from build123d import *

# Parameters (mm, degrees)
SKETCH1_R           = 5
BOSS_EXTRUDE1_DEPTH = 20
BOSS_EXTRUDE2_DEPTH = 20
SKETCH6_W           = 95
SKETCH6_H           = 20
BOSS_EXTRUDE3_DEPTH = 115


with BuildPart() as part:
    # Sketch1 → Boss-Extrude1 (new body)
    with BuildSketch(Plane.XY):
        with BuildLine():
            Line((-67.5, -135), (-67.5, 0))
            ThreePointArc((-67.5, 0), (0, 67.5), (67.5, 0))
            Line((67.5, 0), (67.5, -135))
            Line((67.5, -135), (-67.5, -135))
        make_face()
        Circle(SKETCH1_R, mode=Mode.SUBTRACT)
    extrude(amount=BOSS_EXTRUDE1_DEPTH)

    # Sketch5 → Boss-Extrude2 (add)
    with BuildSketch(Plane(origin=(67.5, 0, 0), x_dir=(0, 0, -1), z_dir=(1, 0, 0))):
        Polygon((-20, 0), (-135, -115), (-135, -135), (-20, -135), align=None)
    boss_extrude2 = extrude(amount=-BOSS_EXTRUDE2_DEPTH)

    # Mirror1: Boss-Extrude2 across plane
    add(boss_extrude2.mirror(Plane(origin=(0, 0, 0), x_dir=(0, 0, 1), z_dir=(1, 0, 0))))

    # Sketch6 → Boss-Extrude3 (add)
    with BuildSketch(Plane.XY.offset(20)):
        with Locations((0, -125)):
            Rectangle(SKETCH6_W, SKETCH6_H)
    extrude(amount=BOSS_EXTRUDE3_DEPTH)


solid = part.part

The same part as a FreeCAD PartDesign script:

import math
import FreeCAD as App
import Part
import Sketcher

V = App.Vector
Q = App.Units.Quantity


def add_polygon(sketch, points):
    """Adds a closed chain of lines whose ends are joined by coincident constraints."""
    first, n = sketch.GeometryCount, len(points)
    for a, b in zip(points, points[1:] + points[:1]):
        sketch.addGeometry(Part.LineSegment(App.Vector(*a, 0), App.Vector(*b, 0)), False)
    for i in range(n):
        sketch.addConstraint(Sketcher.Constraint("Coincident", first + i, 2, first + (i + 1) % n, 1))

doc = App.newDocument("Part")
params = doc.addObject("Spreadsheet::Sheet", "Params")
for row, (alias, value) in enumerate([
    ("sketch1_diameter", "10 mm"),
    ("sketch1_radius", "67.5 mm"),
    ("pad1_length", "20 mm"),
    ("sketch2_width", "20 mm"),
    ("sketch2_width2", "135 mm"),
    ("sketch2_height", "115 mm"),
    ("pad2_length", "20 mm"),
    ("sketch3_width", "95 mm"),
    ("sketch3_height", "20 mm"),
    ("pad3_length", "115 mm"),
], start=1):
    params.set(f"A{row}", alias)
    params.set(f"B{row}", "=" + value)
    params.setAlias(f"B{row}", alias)

body = doc.addObject("PartDesign::Body", "Body")

sketch1 = doc.addObject("Sketcher::SketchObject", "Sketch")
body.addObject(sketch1)
sketch1.AttachmentSupport = (doc.XY_Plane, [""])
sketch1.MapMode = "FlatFace"
sketch1.addGeometry(Part.LineSegment(V(-67.5, 0, 0), V(-67.5, -135, 0)), False)
sketch1.addGeometry(Part.LineSegment(V(-67.5, -135, 0), V(67.5, -135, 0)), False)
sketch1.addGeometry(Part.LineSegment(V(67.5, -135, 0), V(67.5, 0, 0)), False)
sketch1.addGeometry(Part.ArcOfCircle(Part.Circle(V(0, 0, 0), V(0, 0, 1), 67.5), math.radians(0), math.radians(180)), False)
sketch1.addGeometry(Part.Circle(V(0, 0, 0), V(0, 0, 1), 5), False)
sketch1.addConstraint(Sketcher.Constraint("Coincident", 0, 2, 1, 1))
sketch1.addConstraint(Sketcher.Constraint("Coincident", 1, 2, 2, 1))
sketch1.addConstraint(Sketcher.Constraint("Tangent", 2, 2, 3, 1))
sketch1.addConstraint(Sketcher.Constraint("Tangent", 3, 2, 0, 1))
sketch1.addConstraint(Sketcher.Constraint("Vertical", 0))
sketch1.addConstraint(Sketcher.Constraint("Horizontal", 1))
sketch1.addConstraint(Sketcher.Constraint("Vertical", 2))
sketch1.addConstraint(Sketcher.Constraint("Coincident", 3, 3, -1, 1))
sketch1.addConstraint(Sketcher.Constraint("Coincident", 4, 3, -1, 1))
sketch1.addConstraint(Sketcher.Constraint("Equal", 1, 0))
sketch1.addConstraint(Sketcher.Constraint("Diameter", 4, Q("10 mm")))
sketch1.addConstraint(Sketcher.Constraint("Radius", 3, Q("67.5 mm")))
sketch1.setExpression("Constraints[10]", "Params.sketch1_diameter")
sketch1.setExpression("Constraints[11]", "Params.sketch1_radius")
pad1 = doc.addObject("PartDesign::Pad", "Pad")
body.addObject(pad1)
pad1.Profile = sketch1
pad1.setExpression("Length", "Params.pad1_length")

sketch2 = doc.addObject("Sketcher::SketchObject", "Sketch001")
body.addObject(sketch2)
sketch2.AttachmentSupport = (doc.YZ_Plane, [""])
sketch2.MapMode = "FlatFace"
sketch2.AttachmentOffset = App.Placement(V(0, 0, 67.5), App.Rotation())
add_polygon(sketch2, [(0, 20), (-115, 135), (-135, 135), (-135, 20)])
sketch2.addConstraint(Sketcher.Constraint("Horizontal", 1))
sketch2.addConstraint(Sketcher.Constraint("Vertical", 2))
sketch2.addConstraint(Sketcher.Constraint("Horizontal", 3))
sketch2.addConstraint(Sketcher.Constraint("PointOnObject", 3, 2, -2))
sketch2.addConstraint(Sketcher.Constraint("DistanceX", 1, 2, 1, 1, Q("20 mm")))
sketch2.addConstraint(Sketcher.Constraint("DistanceX", 3, 1, 3, 2, Q("135 mm")))
sketch2.addConstraint(Sketcher.Constraint("DistanceY", 2, 2, 2, 1, Q("115 mm")))
sketch2.addConstraint(Sketcher.Constraint("DistanceY", -1, 1, 0, 2, Q("135 mm")))
sketch2.setExpression("Constraints[8]", "Params.sketch2_width")
sketch2.setExpression("Constraints[9]", "Params.sketch2_width2")
sketch2.setExpression("Constraints[10]", "Params.sketch2_height")
pad2 = doc.addObject("PartDesign::Pad", "Pad001")
body.addObject(pad2)
pad2.Profile = sketch2
pad2.setExpression("Length", "Params.pad2_length")
pad2.Reversed = True
doc.recompute()

mirrored = doc.addObject("PartDesign::Mirrored", "Mirrored")
body.addObject(mirrored)
mirrored.Originals = [pad2]
mirrored.MirrorPlane = (doc.YZ_Plane, [""])
body.Tip = mirrored

sketch3 = doc.addObject("Sketcher::SketchObject", "Sketch002")
body.addObject(sketch3)
sketch3.AttachmentSupport = (doc.XY_Plane, [""])
sketch3.MapMode = "FlatFace"
sketch3.AttachmentOffset = App.Placement(V(0, 0, 20), App.Rotation())
add_polygon(sketch3, [(-47.5, -115), (-47.5, -135), (47.5, -135), (47.5, -115)])
sketch3.addConstraint(Sketcher.Constraint("Vertical", 0))
sketch3.addConstraint(Sketcher.Constraint("Horizontal", 1))
sketch3.addConstraint(Sketcher.Constraint("Vertical", 2))
sketch3.addConstraint(Sketcher.Constraint("Horizontal", 3))
sketch3.addConstraint(Sketcher.Constraint("DistanceX", 1, 1, 1, 2, Q("95 mm")))
sketch3.addConstraint(Sketcher.Constraint("DistanceY", 0, 2, 0, 1, Q("20 mm")))
sketch3.addConstraint(Sketcher.Constraint("DistanceY", 0, 2, -1, 1, Q("135 mm")))
sketch3.addConstraint(Sketcher.Constraint("DistanceX", 0, 2, -1, 1, Q("47.5 mm")))
sketch3.setExpression("Constraints[8]", "Params.sketch3_width")
sketch3.setExpression("Constraints[9]", "Params.sketch3_height")
pad3 = doc.addObject("PartDesign::Pad", "Pad002")
body.addObject(pad3)
pad3.Profile = sketch3
pad3.setExpression("Length", "Params.pad3_length")

doc.recompute()
